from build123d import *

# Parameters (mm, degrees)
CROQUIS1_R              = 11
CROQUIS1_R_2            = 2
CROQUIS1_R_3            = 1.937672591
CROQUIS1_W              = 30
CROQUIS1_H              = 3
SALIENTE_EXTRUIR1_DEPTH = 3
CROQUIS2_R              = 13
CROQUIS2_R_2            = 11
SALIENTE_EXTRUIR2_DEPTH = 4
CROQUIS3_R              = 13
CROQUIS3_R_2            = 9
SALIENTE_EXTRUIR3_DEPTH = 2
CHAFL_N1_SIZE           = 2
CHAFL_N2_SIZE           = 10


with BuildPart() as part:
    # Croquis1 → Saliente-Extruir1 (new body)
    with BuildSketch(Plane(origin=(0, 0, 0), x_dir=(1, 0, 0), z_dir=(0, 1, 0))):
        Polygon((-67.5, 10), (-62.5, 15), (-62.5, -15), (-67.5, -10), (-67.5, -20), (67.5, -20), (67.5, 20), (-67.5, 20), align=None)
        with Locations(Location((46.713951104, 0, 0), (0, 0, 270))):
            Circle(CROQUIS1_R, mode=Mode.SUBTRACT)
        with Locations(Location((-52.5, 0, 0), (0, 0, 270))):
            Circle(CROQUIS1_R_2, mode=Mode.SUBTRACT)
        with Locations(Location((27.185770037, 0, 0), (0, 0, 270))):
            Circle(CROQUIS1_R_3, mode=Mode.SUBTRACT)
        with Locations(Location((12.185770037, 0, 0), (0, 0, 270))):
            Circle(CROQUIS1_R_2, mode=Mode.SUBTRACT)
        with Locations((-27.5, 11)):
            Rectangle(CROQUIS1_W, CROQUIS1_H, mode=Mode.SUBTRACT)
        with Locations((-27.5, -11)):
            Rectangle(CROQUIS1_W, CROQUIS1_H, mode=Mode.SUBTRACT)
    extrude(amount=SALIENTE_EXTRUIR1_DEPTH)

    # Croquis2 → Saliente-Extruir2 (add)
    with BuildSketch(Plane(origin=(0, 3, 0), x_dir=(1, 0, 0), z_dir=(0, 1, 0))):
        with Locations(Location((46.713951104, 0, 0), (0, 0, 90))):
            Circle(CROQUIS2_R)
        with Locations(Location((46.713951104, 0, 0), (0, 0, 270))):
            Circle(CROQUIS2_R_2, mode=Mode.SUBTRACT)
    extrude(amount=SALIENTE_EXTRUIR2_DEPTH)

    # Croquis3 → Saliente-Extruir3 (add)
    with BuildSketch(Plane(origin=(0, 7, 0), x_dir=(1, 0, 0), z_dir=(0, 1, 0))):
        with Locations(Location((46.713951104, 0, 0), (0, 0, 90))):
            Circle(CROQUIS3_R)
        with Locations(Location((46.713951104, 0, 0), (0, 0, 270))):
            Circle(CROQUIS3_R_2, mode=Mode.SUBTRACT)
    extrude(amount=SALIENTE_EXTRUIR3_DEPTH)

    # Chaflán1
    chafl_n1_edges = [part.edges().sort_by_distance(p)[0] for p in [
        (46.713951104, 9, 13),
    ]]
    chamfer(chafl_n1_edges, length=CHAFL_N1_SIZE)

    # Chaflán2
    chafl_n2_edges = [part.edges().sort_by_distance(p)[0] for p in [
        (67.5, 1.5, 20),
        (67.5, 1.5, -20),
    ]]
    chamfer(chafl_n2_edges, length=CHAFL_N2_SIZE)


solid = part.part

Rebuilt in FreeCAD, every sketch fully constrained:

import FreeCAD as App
import Part
import Sketcher
Q = App.Units.Quantity


def edges_at(feature, points):
    """Names of the edges that pass closest to the given points."""
    edges = feature.Shape.Edges
    near = lambda p: min(range(len(edges)), key=lambda i: edges[i].distToShape(Part.Vertex(*p))[0])
    return sorted({f"Edge{near(p) + 1}" for p in points})


def add_polygon(sketch, points):
    """Adds a closed chain of lines whose ends are joined by coincident constraints."""
    first, n = sketch.GeometryCount, len(points)
    for a, b in zip(points, points[1:] + points[:1]):
        sketch.addGeometry(Part.LineSegment(App.Vector(*a, 0), App.Vector(*b, 0)), False)
    for i in range(n):
        sketch.addConstraint(Sketcher.Constraint("Coincident", first + i, 2, first + (i + 1) % n, 1))

doc = App.newDocument("Part")
params = doc.addObject("Spreadsheet::Sheet", "Params")
for row, (alias, value) in enumerate([
    ("sketch1_diameter", "4 mm"),
    ("sketch1_diameter2", "22 mm"),
    ("sketch1_width", "135 mm"),
    ("sketch1_width2", "30 mm"),
    ("sketch1_height", "10 mm"),
    ("pad1_length", "3 mm"),
    ("sketch2_diameter", "26 mm"),
    ("sketch2_diameter2", "22 mm"),
    ("pad2_length", "4 mm"),
    ("sketch3_diameter", "26 mm"),
    ("sketch3_diameter2", "18 mm"),
    ("pad3_length", "2 mm"),
    ("chamfer_size", "2 mm"),
    ("chamfer2_size", "10 mm"),
], start=1):
    params.set(f"A{row}", alias)
    params.set(f"B{row}", "=" + value)
    params.setAlias(f"B{row}", alias)

body = doc.addObject("PartDesign::Body", "Body")

sketch1 = body.newObject("Sketcher::SketchObject", "Sketch")
sketch1.AttachmentSupport = (doc.getObject("XZ_Plane"), [""])
sketch1.MapMode = "FlatFace"
add_polygon(sketch1, [(-67.5, -10), (-62.5, -15), (-62.5, 15), (-67.5, 10), (-67.5, 20), (67.5, 20), (67.5, -20), (-67.5, -20)])
add_polygon(sketch1, [(-12.5, 12.5), (-42.5, 12.5), (-42.5, 9.5), (-12.5, 9.5)])
sketch1.addGeometry(Part.Circle(App.Vector(-52.5, 0, 0), App.Vector(0, 0, 1), 2), False)
add_polygon(sketch1, [(-12.5, -9.5), (-42.5, -9.5), (-42.5, -12.5), (-12.5, -12.5)])
sketch1.addGeometry(Part.Circle(App.Vector(12.2, 0, 0), App.Vector(0, 0, 1), 2), False)
sketch1.addGeometry(Part.Circle(App.Vector(27.2, 0, 0), App.Vector(0, 0, 1), 1.9), False)
sketch1.addGeometry(Part.Circle(App.Vector(46.7, 0, 0), App.Vector(0, 0, 1), 11), False)
sketch1.addConstraint([
    Sketcher.Constraint("Vertical", 1),
    Sketcher.Constraint("Vertical", 3),
    Sketcher.Constraint("Horizontal", 4),
    Sketcher.Constraint("Vertical", 5),
    Sketcher.Constraint("Horizontal", 6),
    Sketcher.Constraint("Vertical", 7),
    Sketcher.Constraint("Horizontal", 8),
    Sketcher.Constraint("Vertical", 9),
    Sketcher.Constraint("Horizontal", 10),
    Sketcher.Constraint("Vertical", 11),
    Sketcher.Constraint("Horizontal", 13),
    Sketcher.Constraint("Vertical", 14),
    Sketcher.Constraint("Horizontal", 15),
    Sketcher.Constraint("Vertical", 16),
    Sketcher.Constraint("Equal", 12, 17),
    Sketcher.Constraint("Symmetric", 3, 2, 5, 2, -1, 1),
    Sketcher.Constraint("Symmetric", 2, 2, 7, 2, -1),
    Sketcher.Constraint("Symmetric", 9, 2, 13, 2, -1),
    Sketcher.Constraint("Symmetric", 11, 2, 15, 2, -1),
    Sketcher.Constraint("PointOnObject", 12, 3, -1),
    Sketcher.Constraint("PointOnObject", 17, 3, -1),
    Sketcher.Constraint("PointOnObject", 18, 3, -1),
    Sketcher.Constraint("PointOnObject", 19, 3, -1),
    Sketcher.Constraint("Perpendicular", 0, 2),
    Sketcher.Constraint("Equal", 15, 1),
    Sketcher.Constraint("Equal", 0, 2),
    Sketcher.Constraint("Diameter", 12, Q("4 mm")),
    Sketcher.Constraint("Diameter", 19, Q("22 mm")),
    Sketcher.Constraint("DistanceX", 4, 1, 4, 2, Q("135 mm")),
    Sketcher.Constraint("DistanceX", 8, 2, 8, 1, Q("30 mm")),
    Sketcher.Constraint("DistanceY", 3, 1, 3, 2, Q("10 mm")),
    Sketcher.Constraint("DistanceY", 5, 2, 5, 1, Q("40 mm")),
    Sketcher.Constraint("DistanceY", 9, 2, 9, 1, Q("3 mm")),
    Sketcher.Constraint("DistanceX", 17, 3, 18, 3, Q("15 mm")),
    Sketcher.Constraint("DistanceX", 0, 2, 12, 3, Q("10 mm")),
    Sketcher.Constraint("DistanceX", 12, 3, 8, 2, Q("10 mm")),
    Sketcher.Constraint("DistanceY", 13, 2, 9, 2, Q("19 mm")),
    Sketcher.Constraint("Diameter", 18, Q("3.875345 mm")),
    Sketcher.Constraint("DistanceX", -1, 1, 17, 3, Q("12.18577 mm")),
    Sketcher.Constraint("DistanceX", -1, 1, 19, 3, Q("46.713951 mm")),
])
sketch1.setExpression("Constraints[42]", "Params.sketch1_diameter")
sketch1.setExpression("Constraints[43]", "Params.sketch1_diameter2")
sketch1.setExpression("Constraints[44]", "Params.sketch1_width")
sketch1.setExpression("Constraints[45]", "Params.sketch1_width2")
sketch1.setExpression("Constraints[46]", "Params.sketch1_height")
pad1 = body.newObject("PartDesign::Pad", "Pad")
pad1.Profile = sketch1
pad1.setExpression("Length", "Params.pad1_length")
pad1.Reversed = True

sketch2 = body.newObject("Sketcher::SketchObject", "Sketch001")
sketch2.AttachmentSupport = (doc.getObject("XZ_Plane"), [""])
sketch2.MapMode = "FlatFace"
sketch2.AttachmentOffset = App.Placement(App.Vector(0, 0, -3), App.Rotation())
sketch2.addGeometry([
    Part.Circle(App.Vector(47, 0, 0), App.Vector(0, 0, 1), 13),
    Part.Circle(App.Vector(47, 0, 0), App.Vector(0, 0, 1), 11),
], False)
sketch2.addConstraint([
    Sketcher.Constraint("Coincident", 1, 3, 0, 3),
    Sketcher.Constraint("PointOnObject", 0, 3, -1),
    Sketcher.Constraint("Diameter", 0, Q("26 mm")),
    Sketcher.Constraint("Diameter", 1, Q("22 mm")),
    Sketcher.Constraint("DistanceX", -1, 1, 0, 3, Q("46.713951 mm")),
])
sketch2.setExpression("Constraints[2]", "Params.sketch2_diameter")
sketch2.setExpression("Constraints[3]", "Params.sketch2_diameter2")
pad2 = body.newObject("PartDesign::Pad", "Pad001")
pad2.Profile = sketch2
pad2.setExpression("Length", "Params.pad2_length")
pad2.Reversed = True

sketch3 = body.newObject("Sketcher::SketchObject", "Sketch002")
sketch3.AttachmentSupport = (doc.getObject("XZ_Plane"), [""])
sketch3.MapMode = "FlatFace"
sketch3.AttachmentOffset = App.Placement(App.Vector(0, 0, -7), App.Rotation())
sketch3.addGeometry([
    Part.Circle(App.Vector(47, 0, 0), App.Vector(0, 0, 1), 13),
    Part.Circle(App.Vector(47, 0, 0), App.Vector(0, 0, 1), 9),
], False)
sketch3.addConstraint([
    Sketcher.Constraint("Coincident", 1, 3, 0, 3),
    Sketcher.Constraint("PointOnObject", 0, 3, -1),
    Sketcher.Constraint("Diameter", 0, Q("26 mm")),
    Sketcher.Constraint("Diameter", 1, Q("18 mm")),
    Sketcher.Constraint("DistanceX", -1, 1, 0, 3, Q("46.713951 mm")),
])
sketch3.setExpression("Constraints[2]", "Params.sketch3_diameter")
sketch3.setExpression("Constraints[3]", "Params.sketch3_diameter2")
pad3 = body.newObject("PartDesign::Pad", "Pad002")
pad3.Profile = sketch3
pad3.setExpression("Length", "Params.pad3_length")
pad3.Reversed = True
doc.recompute()

chamfer = body.newObject("PartDesign::Chamfer", "Chamfer")
chamfer.Base = (pad3, edges_at(pad3, [(46.714, 9, 13)]))
chamfer.setExpression("Size", "Params.chamfer_size")
doc.recompute()

chamfer2 = body.newObject("PartDesign::Chamfer", "Chamfer001")
chamfer2.Base = (chamfer, edges_at(chamfer, [(67.5, 1.5, 20), (67.5, 1.5, -20)]))
chamfer2.setExpression("Size", "Params.chamfer2_size")

doc.recompute()
